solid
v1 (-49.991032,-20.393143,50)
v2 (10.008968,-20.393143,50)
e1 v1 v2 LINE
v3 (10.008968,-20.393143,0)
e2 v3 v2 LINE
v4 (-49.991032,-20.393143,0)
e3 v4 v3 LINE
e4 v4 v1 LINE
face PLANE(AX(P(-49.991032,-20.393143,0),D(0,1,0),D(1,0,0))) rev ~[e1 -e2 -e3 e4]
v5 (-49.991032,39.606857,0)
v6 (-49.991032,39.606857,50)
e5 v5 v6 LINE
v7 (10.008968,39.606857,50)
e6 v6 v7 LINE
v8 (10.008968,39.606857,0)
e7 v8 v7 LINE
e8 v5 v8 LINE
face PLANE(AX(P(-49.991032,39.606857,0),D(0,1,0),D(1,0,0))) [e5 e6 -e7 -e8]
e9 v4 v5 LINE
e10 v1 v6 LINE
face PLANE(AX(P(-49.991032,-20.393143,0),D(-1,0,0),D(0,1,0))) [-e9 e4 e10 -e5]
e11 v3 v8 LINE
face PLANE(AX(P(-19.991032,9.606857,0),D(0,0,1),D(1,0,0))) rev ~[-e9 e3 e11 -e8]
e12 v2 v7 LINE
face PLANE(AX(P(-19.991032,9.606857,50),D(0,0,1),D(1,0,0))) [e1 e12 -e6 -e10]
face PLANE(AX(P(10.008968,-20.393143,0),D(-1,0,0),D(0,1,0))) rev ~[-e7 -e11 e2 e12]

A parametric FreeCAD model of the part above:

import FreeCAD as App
import Part
import Sketcher

V = App.Vector
Q = App.Units.Quantity


def add_polygon(sketch, points):
    """Adds a closed chain of lines whose ends are joined by coincident constraints."""
    first, n = sketch.GeometryCount, len(points)
    for a, b in zip(points, points[1:] + points[:1]):
        sketch.addGeometry(Part.LineSegment(App.Vector(*a, 0), App.Vector(*b, 0)), False)
    for i in range(n):
        sketch.addConstraint(Sketcher.Constraint("Coincident", first + i, 2, first + (i + 1) % n, 1))

doc = App.newDocument("Part")
body = doc.addObject("PartDesign::Body", "Body")

sketch1 = doc.addObject("Sketcher::SketchObject", "Sketch")
body.addObject(sketch1)
sketch1.AttachmentSupport = (doc.XY_Plane, [""])
sketch1.MapMode = "FlatFace"
add_polygon(sketch1, [(-50, 40), (-50, -20), (10, -20), (10, 40)])
sketch1.addConstraint([
    Sketcher.Constraint("Vertical", 0),
    Sketcher.Constraint("Horizontal", 1),
    Sketcher.Constraint("Vertical", 2),
    Sketcher.Constraint("Horizontal", 3),
    Sketcher.Constraint("Equal", 3, 0),
    Sketcher.Constraint("DistanceX", 1, 1, 1, 2, Q("60 mm")),
    Sketcher.Constraint("DistanceX", 0, 2, -1, 1, Q("49.991032 mm")),
    Sketcher.Constraint("DistanceY", 0, 2, -1, 1, Q("20.393143 mm")),
])
pad1 = doc.addObject("PartDesign::Pad", "Pad")
body.addObject(pad1)
pad1.Profile = sketch1
pad1.Length = 50

doc.recompute()
